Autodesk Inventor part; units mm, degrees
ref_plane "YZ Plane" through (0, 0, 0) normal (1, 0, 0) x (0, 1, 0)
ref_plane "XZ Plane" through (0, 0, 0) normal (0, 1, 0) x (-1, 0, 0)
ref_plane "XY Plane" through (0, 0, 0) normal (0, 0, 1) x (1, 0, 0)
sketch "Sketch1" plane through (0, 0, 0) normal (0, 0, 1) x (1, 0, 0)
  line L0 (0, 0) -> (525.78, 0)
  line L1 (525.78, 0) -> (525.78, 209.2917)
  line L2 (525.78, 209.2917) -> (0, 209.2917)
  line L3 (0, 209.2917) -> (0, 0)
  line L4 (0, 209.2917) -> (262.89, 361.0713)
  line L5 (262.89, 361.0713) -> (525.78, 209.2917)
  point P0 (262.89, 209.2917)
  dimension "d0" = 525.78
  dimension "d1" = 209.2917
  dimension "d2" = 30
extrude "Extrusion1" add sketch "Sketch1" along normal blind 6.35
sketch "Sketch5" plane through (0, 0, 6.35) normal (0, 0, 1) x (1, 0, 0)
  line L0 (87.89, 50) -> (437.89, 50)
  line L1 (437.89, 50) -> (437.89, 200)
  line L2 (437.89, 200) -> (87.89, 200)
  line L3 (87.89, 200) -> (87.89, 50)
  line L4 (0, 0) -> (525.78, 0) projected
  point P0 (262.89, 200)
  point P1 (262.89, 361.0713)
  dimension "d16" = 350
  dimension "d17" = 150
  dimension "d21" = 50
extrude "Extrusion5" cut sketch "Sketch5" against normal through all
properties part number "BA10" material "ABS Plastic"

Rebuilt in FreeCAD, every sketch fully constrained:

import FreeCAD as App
import Part
import Sketcher
Q = App.Units.Quantity


def add_polygon(sketch, points):
    """Adds a closed chain of lines whose ends are joined by coincident constraints."""
    first, n = sketch.GeometryCount, len(points)
    for a, b in zip(points, points[1:] + points[:1]):
        sketch.addGeometry(Part.LineSegment(App.Vector(*a, 0), App.Vector(*b, 0)), False)
    for i in range(n):
        sketch.addConstraint(Sketcher.Constraint("Coincident", first + i, 2, first + (i + 1) % n, 1))

doc = App.newDocument("Part")
body = doc.addObject("PartDesign::Body", "Body")

sketch1 = body.newObject("Sketcher::SketchObject", "Sketch")
sketch1.AttachmentSupport = (doc.getObject("XY_Plane"), [""])
sketch1.MapMode = "FlatFace"
add_polygon(sketch1, [(0, 209), (0, 0), (526, 0), (526, 209), (263, 361)])
sketch1.addConstraint([
    Sketcher.Constraint("Vertical", 0),
    Sketcher.Constraint("Horizontal", 1),
    Sketcher.Constraint("Vertical", 2),
    Sketcher.Constraint("Coincident", 0, 2, -1, 1),
    Sketcher.Constraint("Horizontal", 2, 2, 4, 2),
    Sketcher.Constraint("Equal", 3, 4),
    Sketcher.Constraint("DistanceX", 1, 1, 1, 2, Q("20.7 in")),
    Sketcher.Constraint("Angle", 3, Q("150 deg")),
    Sketcher.Constraint("DistanceY", 0, 2, 0, 1, 209.2917),
])
pad1 = body.newObject("PartDesign::Pad", "Pad")
pad1.Profile = sketch1
pad1.Length = Q("0.25 in")

sketch2 = body.newObject("Sketcher::SketchObject", "Sketch001")
sketch2.AttachmentSupport = (doc.getObject("XY_Plane"), [""])
sketch2.MapMode = "FlatFace"
sketch2.AttachmentOffset = App.Placement(App.Vector(0, 0, 0.25 * 25.4), App.Rotation())
add_polygon(sketch2, [(88, 200), (88, 50), (438, 50), (438, 200)])
sketch2.addConstraint([
    Sketcher.Constraint("Vertical", 0),
    Sketcher.Constraint("Horizontal", 1),
    Sketcher.Constraint("Vertical", 2),
    Sketcher.Constraint("Horizontal", 3),
    Sketcher.Constraint("DistanceY", 0, 2, 0, 1, Q("5.9055 in")),
    Sketcher.Constraint("DistanceX", 1, 1, 1, 2, 350.0),
    Sketcher.Constraint("DistanceY", -1, 1, 0, 2, Q("1.9685 in")),
    Sketcher.Constraint("DistanceX", -1, 1, 0, 2, 87.89),
])
pocket1 = body.newObject("PartDesign::Pocket", "Pocket")
pocket1.Profile = sketch2
pocket1.Type = "ThroughAll"

doc.recompute()
